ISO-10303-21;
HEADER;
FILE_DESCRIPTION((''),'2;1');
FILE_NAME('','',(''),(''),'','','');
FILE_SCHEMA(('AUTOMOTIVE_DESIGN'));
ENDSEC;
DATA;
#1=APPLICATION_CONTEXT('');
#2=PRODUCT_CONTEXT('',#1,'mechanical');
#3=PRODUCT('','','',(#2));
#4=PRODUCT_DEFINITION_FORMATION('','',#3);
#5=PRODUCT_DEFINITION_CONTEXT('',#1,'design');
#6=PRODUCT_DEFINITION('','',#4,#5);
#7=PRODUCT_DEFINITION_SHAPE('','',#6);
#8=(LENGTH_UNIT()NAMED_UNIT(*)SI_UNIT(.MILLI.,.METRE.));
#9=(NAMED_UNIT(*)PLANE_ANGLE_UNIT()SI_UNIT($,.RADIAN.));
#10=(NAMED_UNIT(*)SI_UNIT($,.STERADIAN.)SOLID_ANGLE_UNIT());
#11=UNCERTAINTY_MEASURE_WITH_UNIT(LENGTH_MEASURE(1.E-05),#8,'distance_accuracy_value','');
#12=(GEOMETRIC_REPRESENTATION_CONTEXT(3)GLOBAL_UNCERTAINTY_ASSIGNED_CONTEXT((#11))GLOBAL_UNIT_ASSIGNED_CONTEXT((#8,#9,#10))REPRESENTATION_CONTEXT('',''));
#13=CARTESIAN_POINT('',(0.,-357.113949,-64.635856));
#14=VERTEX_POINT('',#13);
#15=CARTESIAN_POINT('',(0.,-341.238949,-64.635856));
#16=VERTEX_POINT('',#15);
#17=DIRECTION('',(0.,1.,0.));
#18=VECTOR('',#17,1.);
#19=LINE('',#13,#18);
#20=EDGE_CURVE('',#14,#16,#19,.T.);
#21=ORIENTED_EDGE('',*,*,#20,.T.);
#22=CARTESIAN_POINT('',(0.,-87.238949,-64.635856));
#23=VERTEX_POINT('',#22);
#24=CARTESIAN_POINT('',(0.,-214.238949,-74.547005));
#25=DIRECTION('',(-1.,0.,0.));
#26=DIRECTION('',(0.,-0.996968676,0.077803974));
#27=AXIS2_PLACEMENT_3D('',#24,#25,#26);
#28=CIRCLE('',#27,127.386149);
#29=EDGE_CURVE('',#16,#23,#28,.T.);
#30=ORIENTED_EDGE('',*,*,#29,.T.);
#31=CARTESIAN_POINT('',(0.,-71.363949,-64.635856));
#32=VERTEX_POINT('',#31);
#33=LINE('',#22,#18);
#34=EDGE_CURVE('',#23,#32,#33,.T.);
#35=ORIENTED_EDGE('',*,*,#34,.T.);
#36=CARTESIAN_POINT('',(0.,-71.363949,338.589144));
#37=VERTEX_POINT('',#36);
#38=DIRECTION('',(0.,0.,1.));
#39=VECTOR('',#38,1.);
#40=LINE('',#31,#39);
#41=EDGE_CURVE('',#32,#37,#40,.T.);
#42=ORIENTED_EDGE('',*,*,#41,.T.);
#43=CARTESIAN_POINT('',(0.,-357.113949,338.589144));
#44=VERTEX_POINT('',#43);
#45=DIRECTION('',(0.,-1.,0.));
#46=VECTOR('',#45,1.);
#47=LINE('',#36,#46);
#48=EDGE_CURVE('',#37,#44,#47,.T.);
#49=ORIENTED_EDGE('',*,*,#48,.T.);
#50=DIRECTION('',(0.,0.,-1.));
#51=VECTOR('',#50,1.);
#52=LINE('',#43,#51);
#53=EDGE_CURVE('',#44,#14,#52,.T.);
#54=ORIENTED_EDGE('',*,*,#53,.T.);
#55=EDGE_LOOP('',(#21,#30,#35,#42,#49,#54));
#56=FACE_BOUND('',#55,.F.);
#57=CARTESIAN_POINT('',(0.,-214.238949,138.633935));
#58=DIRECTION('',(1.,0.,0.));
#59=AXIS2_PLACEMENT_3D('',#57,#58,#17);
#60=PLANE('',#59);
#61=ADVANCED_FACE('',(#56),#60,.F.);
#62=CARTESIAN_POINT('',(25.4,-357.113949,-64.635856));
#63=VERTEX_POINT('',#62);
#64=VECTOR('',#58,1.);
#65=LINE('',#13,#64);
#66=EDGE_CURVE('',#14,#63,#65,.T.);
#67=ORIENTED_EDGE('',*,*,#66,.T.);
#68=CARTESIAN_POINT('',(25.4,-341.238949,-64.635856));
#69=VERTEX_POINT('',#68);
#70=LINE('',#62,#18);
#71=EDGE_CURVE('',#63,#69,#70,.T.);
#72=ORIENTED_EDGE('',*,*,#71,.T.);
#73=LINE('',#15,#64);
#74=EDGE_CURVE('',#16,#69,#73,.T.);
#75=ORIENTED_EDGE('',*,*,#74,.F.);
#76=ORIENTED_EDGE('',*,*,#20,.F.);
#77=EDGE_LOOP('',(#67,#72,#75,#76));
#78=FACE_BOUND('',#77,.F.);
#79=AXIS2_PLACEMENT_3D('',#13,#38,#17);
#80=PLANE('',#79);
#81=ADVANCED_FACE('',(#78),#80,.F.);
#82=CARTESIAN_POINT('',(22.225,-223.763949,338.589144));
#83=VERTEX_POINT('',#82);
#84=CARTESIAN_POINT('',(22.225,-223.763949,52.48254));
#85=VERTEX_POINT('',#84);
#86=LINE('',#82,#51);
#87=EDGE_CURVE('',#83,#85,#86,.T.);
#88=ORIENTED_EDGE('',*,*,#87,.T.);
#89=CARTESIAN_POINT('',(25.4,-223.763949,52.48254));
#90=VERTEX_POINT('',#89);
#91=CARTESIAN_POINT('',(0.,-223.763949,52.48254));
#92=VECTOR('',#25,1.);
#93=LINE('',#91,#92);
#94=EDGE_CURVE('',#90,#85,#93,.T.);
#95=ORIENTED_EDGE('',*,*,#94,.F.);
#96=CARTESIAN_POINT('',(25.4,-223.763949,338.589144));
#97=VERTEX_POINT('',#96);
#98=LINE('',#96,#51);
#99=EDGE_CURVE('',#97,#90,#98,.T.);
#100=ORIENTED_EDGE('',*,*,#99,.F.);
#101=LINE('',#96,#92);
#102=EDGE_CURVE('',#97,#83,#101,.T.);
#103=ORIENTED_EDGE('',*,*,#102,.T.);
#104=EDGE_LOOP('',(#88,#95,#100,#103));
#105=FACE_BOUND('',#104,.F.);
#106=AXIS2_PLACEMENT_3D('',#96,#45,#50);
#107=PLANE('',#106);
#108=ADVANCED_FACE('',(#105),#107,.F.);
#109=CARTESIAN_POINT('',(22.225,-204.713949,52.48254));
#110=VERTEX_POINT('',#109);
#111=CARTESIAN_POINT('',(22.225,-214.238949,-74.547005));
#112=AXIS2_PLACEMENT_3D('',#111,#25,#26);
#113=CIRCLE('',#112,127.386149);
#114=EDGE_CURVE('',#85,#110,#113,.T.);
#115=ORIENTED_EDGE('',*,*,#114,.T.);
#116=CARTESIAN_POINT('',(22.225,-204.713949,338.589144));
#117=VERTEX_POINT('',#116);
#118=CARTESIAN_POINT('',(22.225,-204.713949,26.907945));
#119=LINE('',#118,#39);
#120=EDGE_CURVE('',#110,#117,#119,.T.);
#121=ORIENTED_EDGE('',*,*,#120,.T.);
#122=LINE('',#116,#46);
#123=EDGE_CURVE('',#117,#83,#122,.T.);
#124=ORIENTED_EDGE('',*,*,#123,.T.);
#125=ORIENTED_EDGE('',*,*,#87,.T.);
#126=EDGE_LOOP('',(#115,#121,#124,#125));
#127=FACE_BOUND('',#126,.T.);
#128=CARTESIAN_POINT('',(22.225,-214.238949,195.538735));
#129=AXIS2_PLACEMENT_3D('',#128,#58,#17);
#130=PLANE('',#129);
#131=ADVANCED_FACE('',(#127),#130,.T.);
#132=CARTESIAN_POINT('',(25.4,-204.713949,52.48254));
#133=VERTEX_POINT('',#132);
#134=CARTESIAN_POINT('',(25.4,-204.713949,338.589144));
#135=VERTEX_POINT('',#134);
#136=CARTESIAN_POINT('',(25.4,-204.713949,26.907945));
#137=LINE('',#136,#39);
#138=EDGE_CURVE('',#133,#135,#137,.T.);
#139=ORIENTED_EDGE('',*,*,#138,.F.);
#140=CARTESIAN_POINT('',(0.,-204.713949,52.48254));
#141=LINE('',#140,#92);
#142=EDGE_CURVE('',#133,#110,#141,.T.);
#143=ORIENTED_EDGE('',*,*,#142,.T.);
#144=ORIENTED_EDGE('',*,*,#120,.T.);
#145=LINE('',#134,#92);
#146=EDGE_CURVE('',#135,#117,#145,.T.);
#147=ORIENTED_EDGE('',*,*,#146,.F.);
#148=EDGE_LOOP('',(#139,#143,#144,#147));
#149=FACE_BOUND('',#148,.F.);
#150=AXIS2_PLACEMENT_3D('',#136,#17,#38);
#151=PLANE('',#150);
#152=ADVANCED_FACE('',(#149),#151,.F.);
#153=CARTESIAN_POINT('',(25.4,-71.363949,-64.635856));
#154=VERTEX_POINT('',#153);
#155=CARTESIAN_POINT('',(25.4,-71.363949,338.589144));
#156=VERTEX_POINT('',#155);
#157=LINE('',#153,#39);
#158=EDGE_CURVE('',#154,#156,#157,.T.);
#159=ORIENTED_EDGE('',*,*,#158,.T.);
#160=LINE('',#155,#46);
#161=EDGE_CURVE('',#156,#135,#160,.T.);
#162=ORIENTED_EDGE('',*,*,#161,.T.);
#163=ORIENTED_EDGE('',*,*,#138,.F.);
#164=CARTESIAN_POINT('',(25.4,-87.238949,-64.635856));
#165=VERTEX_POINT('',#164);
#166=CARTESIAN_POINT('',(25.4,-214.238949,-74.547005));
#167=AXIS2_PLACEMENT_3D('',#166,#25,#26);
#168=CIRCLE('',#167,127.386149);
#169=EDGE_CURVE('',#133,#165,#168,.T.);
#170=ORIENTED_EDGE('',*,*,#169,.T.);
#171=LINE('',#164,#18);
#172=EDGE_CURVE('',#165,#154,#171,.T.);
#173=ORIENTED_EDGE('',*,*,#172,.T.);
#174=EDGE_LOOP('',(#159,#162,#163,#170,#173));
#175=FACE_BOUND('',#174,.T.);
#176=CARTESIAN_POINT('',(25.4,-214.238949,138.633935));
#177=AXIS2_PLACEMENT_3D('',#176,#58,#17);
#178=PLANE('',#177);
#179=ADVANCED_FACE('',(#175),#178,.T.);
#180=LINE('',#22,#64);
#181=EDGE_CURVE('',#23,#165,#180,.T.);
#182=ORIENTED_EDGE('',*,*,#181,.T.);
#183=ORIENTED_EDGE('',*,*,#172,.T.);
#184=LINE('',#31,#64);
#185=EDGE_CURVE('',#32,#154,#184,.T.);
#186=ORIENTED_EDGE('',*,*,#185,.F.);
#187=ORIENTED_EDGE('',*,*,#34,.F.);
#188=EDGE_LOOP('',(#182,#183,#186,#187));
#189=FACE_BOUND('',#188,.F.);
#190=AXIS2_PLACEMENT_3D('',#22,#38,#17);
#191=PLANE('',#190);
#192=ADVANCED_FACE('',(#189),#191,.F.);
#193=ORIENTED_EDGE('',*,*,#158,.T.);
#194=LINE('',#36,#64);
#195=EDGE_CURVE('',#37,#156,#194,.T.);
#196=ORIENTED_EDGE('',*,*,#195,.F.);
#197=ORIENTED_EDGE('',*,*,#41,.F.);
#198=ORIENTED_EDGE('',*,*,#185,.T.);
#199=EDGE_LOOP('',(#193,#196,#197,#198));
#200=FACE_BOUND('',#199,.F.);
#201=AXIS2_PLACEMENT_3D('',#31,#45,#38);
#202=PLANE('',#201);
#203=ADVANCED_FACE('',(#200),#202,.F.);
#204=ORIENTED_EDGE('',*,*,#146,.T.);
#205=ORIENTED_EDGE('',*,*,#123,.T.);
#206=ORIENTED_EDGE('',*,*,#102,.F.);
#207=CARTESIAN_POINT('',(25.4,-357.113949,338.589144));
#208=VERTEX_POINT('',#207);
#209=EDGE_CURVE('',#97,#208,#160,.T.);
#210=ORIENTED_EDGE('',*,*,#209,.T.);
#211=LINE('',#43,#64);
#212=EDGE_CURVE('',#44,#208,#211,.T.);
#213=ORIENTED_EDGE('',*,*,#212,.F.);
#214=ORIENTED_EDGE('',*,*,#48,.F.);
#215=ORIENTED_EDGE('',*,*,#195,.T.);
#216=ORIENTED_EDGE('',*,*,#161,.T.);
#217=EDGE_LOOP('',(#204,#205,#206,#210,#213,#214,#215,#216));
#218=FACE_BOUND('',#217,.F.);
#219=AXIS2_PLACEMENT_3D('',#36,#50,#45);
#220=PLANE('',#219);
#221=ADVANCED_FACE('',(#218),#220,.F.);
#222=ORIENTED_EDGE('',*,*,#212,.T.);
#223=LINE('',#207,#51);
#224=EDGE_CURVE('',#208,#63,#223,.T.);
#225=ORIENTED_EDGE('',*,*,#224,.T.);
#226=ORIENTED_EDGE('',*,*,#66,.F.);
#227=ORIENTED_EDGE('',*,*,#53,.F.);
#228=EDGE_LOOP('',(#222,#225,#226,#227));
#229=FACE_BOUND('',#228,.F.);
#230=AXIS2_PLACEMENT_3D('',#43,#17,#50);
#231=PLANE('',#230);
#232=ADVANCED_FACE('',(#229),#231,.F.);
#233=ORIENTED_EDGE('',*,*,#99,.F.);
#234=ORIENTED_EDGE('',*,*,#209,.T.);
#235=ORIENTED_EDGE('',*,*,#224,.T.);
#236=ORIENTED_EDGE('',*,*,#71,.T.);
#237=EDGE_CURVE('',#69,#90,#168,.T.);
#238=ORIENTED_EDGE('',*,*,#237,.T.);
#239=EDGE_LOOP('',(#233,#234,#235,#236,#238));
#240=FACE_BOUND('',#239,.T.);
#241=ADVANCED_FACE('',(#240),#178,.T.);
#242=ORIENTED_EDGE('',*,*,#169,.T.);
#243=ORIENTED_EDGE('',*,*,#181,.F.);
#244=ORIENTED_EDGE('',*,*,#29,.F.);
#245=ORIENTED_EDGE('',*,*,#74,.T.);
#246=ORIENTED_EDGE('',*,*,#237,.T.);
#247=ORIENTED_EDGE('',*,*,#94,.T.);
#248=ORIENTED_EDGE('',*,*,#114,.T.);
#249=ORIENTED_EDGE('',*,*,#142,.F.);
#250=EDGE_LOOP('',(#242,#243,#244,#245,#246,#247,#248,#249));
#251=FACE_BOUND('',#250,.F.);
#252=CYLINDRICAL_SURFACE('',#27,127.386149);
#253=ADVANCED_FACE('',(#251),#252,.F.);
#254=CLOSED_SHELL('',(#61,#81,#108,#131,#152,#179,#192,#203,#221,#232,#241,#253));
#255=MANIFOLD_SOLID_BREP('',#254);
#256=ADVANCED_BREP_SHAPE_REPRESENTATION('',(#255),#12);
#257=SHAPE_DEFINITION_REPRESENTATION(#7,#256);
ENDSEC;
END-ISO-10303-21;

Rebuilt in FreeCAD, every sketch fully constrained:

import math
import FreeCAD as App
import Part
import Sketcher
from FreeCAD import Vector
Q = App.Units.Quantity


def add_polygon(sketch, points):
    """Adds a closed chain of lines whose ends are joined by coincident constraints."""
    first, n = sketch.GeometryCount, len(points)
    for a, b in zip(points, points[1:] + points[:1]):
        sketch.addGeometry(Part.LineSegment(App.Vector(*a, 0), App.Vector(*b, 0)), False)
    for i in range(n):
        sketch.addConstraint(Sketcher.Constraint("Coincident", first + i, 2, first + (i + 1) % n, 1))

doc = App.newDocument("Part")
body = doc.addObject("PartDesign::Body", "Body")

# Sketch on YZ plane
sketch1 = body.newObject("Sketcher::SketchObject", "Sketch")
sketch1.AttachmentSupport = (doc.getObject("YZ_Plane"), [""])
sketch1.MapMode = "FlatFace"
sketch1.addGeometry(Part.LineSegment(Vector(-71, 339, 0), Vector(-357, 339, 0)), False)
sketch1.addGeometry(Part.LineSegment(Vector(-357, 339, 0), Vector(-357, -65, 0)), False)
sketch1.addGeometry(Part.LineSegment(Vector(-357, -65, 0), Vector(-341, -65, 0)), False)
sketch1.addGeometry(Part.ArcOfCircle(Part.Circle(Vector(-214, -75, 0), Vector(0, 0, 1), 127), math.radians(4), math.radians(176)), False)
sketch1.addGeometry(Part.LineSegment(Vector(-87, -65, 0), Vector(-71, -65, 0)), False)
sketch1.addGeometry(Part.LineSegment(Vector(-71, -65, 0), Vector(-71, 339, 0)), False)
sketch1.addConstraint(Sketcher.Constraint("Coincident", 0, 2, 1, 1))
sketch1.addConstraint(Sketcher.Constraint("Coincident", 1, 2, 2, 1))
sketch1.addConstraint(Sketcher.Constraint("Coincident", 2, 2, 3, 2))
sketch1.addConstraint(Sketcher.Constraint("Coincident", 3, 1, 4, 1))
sketch1.addConstraint(Sketcher.Constraint("Coincident", 4, 2, 5, 1))
sketch1.addConstraint(Sketcher.Constraint("Coincident", 5, 2, 0, 1))
sketch1.addConstraint(Sketcher.Constraint("Horizontal", 0))
sketch1.addConstraint(Sketcher.Constraint("Vertical", 1))
sketch1.addConstraint(Sketcher.Constraint("Horizontal", 2))
sketch1.addConstraint(Sketcher.Constraint("Horizontal", 4))
sketch1.addConstraint(Sketcher.Constraint("Vertical", 5))
sketch1.addConstraint(Sketcher.Constraint("Horizontal", 2, 2, 3, 1))
sketch1.addConstraint(Sketcher.Constraint("Equal", 2, 4))
sketch1.addConstraint(Sketcher.Constraint("DistanceX", 2, 2, 3, 3, Q("5 in")))
sketch1.addConstraint(Sketcher.Constraint("DistanceX", 0, 2, 0, 1, Q("11.25 in")))
sketch1.addConstraint(Sketcher.Constraint("DistanceY", 1, 2, 1, 1, Q("15.875 in")))
sketch1.addConstraint(Sketcher.Constraint("Radius", 3, 127.386149))
sketch1.addConstraint(Sketcher.Constraint("DistanceX", 3, 3, -1, 1, 214.238949))
sketch1.addConstraint(Sketcher.Constraint("DistanceY", 3, 3, -1, 1, 74.547005))
pad1 = body.newObject("PartDesign::Pad", "Pad")
pad1.Profile = sketch1
pad1.Length = Q("1 in")

# Sketch on YZ plane
sketch2 = body.newObject("Sketcher::SketchObject", "Sketch001")
sketch2.AttachmentSupport = (doc.getObject("YZ_Plane"), [""])
sketch2.MapMode = "FlatFace"
sketch2.AttachmentOffset = App.Placement(Vector(0, 0, 1 * 25.4), App.Rotation())
add_polygon(sketch2, [(-205, 339), (-224, 339), (-224, 27), (-205, 27)])  # lines 0-3
sketch2.addConstraint(Sketcher.Constraint("Horizontal", 0))
sketch2.addConstraint(Sketcher.Constraint("Vertical", 1))
sketch2.addConstraint(Sketcher.Constraint("Horizontal", 2))
sketch2.addConstraint(Sketcher.Constraint("Vertical", 3))
sketch2.addConstraint(Sketcher.Constraint("DistanceX", 0, 2, 0, 1, Q("0.75 in")))
sketch2.addConstraint(Sketcher.Constraint("DistanceY", 1, 2, 1, 1, 311.681199))
sketch2.addConstraint(Sketcher.Constraint("DistanceX", 0, 2, -1, 1, 223.763949))
sketch2.addConstraint(Sketcher.Constraint("DistanceY", -1, 1, 0, 2, 338.589144))
pocket1 = body.newObject("PartDesign::Pocket", "Pocket")
pocket1.Profile = sketch2
pocket1.Length = Q("0.125 in")

doc.recompute()
